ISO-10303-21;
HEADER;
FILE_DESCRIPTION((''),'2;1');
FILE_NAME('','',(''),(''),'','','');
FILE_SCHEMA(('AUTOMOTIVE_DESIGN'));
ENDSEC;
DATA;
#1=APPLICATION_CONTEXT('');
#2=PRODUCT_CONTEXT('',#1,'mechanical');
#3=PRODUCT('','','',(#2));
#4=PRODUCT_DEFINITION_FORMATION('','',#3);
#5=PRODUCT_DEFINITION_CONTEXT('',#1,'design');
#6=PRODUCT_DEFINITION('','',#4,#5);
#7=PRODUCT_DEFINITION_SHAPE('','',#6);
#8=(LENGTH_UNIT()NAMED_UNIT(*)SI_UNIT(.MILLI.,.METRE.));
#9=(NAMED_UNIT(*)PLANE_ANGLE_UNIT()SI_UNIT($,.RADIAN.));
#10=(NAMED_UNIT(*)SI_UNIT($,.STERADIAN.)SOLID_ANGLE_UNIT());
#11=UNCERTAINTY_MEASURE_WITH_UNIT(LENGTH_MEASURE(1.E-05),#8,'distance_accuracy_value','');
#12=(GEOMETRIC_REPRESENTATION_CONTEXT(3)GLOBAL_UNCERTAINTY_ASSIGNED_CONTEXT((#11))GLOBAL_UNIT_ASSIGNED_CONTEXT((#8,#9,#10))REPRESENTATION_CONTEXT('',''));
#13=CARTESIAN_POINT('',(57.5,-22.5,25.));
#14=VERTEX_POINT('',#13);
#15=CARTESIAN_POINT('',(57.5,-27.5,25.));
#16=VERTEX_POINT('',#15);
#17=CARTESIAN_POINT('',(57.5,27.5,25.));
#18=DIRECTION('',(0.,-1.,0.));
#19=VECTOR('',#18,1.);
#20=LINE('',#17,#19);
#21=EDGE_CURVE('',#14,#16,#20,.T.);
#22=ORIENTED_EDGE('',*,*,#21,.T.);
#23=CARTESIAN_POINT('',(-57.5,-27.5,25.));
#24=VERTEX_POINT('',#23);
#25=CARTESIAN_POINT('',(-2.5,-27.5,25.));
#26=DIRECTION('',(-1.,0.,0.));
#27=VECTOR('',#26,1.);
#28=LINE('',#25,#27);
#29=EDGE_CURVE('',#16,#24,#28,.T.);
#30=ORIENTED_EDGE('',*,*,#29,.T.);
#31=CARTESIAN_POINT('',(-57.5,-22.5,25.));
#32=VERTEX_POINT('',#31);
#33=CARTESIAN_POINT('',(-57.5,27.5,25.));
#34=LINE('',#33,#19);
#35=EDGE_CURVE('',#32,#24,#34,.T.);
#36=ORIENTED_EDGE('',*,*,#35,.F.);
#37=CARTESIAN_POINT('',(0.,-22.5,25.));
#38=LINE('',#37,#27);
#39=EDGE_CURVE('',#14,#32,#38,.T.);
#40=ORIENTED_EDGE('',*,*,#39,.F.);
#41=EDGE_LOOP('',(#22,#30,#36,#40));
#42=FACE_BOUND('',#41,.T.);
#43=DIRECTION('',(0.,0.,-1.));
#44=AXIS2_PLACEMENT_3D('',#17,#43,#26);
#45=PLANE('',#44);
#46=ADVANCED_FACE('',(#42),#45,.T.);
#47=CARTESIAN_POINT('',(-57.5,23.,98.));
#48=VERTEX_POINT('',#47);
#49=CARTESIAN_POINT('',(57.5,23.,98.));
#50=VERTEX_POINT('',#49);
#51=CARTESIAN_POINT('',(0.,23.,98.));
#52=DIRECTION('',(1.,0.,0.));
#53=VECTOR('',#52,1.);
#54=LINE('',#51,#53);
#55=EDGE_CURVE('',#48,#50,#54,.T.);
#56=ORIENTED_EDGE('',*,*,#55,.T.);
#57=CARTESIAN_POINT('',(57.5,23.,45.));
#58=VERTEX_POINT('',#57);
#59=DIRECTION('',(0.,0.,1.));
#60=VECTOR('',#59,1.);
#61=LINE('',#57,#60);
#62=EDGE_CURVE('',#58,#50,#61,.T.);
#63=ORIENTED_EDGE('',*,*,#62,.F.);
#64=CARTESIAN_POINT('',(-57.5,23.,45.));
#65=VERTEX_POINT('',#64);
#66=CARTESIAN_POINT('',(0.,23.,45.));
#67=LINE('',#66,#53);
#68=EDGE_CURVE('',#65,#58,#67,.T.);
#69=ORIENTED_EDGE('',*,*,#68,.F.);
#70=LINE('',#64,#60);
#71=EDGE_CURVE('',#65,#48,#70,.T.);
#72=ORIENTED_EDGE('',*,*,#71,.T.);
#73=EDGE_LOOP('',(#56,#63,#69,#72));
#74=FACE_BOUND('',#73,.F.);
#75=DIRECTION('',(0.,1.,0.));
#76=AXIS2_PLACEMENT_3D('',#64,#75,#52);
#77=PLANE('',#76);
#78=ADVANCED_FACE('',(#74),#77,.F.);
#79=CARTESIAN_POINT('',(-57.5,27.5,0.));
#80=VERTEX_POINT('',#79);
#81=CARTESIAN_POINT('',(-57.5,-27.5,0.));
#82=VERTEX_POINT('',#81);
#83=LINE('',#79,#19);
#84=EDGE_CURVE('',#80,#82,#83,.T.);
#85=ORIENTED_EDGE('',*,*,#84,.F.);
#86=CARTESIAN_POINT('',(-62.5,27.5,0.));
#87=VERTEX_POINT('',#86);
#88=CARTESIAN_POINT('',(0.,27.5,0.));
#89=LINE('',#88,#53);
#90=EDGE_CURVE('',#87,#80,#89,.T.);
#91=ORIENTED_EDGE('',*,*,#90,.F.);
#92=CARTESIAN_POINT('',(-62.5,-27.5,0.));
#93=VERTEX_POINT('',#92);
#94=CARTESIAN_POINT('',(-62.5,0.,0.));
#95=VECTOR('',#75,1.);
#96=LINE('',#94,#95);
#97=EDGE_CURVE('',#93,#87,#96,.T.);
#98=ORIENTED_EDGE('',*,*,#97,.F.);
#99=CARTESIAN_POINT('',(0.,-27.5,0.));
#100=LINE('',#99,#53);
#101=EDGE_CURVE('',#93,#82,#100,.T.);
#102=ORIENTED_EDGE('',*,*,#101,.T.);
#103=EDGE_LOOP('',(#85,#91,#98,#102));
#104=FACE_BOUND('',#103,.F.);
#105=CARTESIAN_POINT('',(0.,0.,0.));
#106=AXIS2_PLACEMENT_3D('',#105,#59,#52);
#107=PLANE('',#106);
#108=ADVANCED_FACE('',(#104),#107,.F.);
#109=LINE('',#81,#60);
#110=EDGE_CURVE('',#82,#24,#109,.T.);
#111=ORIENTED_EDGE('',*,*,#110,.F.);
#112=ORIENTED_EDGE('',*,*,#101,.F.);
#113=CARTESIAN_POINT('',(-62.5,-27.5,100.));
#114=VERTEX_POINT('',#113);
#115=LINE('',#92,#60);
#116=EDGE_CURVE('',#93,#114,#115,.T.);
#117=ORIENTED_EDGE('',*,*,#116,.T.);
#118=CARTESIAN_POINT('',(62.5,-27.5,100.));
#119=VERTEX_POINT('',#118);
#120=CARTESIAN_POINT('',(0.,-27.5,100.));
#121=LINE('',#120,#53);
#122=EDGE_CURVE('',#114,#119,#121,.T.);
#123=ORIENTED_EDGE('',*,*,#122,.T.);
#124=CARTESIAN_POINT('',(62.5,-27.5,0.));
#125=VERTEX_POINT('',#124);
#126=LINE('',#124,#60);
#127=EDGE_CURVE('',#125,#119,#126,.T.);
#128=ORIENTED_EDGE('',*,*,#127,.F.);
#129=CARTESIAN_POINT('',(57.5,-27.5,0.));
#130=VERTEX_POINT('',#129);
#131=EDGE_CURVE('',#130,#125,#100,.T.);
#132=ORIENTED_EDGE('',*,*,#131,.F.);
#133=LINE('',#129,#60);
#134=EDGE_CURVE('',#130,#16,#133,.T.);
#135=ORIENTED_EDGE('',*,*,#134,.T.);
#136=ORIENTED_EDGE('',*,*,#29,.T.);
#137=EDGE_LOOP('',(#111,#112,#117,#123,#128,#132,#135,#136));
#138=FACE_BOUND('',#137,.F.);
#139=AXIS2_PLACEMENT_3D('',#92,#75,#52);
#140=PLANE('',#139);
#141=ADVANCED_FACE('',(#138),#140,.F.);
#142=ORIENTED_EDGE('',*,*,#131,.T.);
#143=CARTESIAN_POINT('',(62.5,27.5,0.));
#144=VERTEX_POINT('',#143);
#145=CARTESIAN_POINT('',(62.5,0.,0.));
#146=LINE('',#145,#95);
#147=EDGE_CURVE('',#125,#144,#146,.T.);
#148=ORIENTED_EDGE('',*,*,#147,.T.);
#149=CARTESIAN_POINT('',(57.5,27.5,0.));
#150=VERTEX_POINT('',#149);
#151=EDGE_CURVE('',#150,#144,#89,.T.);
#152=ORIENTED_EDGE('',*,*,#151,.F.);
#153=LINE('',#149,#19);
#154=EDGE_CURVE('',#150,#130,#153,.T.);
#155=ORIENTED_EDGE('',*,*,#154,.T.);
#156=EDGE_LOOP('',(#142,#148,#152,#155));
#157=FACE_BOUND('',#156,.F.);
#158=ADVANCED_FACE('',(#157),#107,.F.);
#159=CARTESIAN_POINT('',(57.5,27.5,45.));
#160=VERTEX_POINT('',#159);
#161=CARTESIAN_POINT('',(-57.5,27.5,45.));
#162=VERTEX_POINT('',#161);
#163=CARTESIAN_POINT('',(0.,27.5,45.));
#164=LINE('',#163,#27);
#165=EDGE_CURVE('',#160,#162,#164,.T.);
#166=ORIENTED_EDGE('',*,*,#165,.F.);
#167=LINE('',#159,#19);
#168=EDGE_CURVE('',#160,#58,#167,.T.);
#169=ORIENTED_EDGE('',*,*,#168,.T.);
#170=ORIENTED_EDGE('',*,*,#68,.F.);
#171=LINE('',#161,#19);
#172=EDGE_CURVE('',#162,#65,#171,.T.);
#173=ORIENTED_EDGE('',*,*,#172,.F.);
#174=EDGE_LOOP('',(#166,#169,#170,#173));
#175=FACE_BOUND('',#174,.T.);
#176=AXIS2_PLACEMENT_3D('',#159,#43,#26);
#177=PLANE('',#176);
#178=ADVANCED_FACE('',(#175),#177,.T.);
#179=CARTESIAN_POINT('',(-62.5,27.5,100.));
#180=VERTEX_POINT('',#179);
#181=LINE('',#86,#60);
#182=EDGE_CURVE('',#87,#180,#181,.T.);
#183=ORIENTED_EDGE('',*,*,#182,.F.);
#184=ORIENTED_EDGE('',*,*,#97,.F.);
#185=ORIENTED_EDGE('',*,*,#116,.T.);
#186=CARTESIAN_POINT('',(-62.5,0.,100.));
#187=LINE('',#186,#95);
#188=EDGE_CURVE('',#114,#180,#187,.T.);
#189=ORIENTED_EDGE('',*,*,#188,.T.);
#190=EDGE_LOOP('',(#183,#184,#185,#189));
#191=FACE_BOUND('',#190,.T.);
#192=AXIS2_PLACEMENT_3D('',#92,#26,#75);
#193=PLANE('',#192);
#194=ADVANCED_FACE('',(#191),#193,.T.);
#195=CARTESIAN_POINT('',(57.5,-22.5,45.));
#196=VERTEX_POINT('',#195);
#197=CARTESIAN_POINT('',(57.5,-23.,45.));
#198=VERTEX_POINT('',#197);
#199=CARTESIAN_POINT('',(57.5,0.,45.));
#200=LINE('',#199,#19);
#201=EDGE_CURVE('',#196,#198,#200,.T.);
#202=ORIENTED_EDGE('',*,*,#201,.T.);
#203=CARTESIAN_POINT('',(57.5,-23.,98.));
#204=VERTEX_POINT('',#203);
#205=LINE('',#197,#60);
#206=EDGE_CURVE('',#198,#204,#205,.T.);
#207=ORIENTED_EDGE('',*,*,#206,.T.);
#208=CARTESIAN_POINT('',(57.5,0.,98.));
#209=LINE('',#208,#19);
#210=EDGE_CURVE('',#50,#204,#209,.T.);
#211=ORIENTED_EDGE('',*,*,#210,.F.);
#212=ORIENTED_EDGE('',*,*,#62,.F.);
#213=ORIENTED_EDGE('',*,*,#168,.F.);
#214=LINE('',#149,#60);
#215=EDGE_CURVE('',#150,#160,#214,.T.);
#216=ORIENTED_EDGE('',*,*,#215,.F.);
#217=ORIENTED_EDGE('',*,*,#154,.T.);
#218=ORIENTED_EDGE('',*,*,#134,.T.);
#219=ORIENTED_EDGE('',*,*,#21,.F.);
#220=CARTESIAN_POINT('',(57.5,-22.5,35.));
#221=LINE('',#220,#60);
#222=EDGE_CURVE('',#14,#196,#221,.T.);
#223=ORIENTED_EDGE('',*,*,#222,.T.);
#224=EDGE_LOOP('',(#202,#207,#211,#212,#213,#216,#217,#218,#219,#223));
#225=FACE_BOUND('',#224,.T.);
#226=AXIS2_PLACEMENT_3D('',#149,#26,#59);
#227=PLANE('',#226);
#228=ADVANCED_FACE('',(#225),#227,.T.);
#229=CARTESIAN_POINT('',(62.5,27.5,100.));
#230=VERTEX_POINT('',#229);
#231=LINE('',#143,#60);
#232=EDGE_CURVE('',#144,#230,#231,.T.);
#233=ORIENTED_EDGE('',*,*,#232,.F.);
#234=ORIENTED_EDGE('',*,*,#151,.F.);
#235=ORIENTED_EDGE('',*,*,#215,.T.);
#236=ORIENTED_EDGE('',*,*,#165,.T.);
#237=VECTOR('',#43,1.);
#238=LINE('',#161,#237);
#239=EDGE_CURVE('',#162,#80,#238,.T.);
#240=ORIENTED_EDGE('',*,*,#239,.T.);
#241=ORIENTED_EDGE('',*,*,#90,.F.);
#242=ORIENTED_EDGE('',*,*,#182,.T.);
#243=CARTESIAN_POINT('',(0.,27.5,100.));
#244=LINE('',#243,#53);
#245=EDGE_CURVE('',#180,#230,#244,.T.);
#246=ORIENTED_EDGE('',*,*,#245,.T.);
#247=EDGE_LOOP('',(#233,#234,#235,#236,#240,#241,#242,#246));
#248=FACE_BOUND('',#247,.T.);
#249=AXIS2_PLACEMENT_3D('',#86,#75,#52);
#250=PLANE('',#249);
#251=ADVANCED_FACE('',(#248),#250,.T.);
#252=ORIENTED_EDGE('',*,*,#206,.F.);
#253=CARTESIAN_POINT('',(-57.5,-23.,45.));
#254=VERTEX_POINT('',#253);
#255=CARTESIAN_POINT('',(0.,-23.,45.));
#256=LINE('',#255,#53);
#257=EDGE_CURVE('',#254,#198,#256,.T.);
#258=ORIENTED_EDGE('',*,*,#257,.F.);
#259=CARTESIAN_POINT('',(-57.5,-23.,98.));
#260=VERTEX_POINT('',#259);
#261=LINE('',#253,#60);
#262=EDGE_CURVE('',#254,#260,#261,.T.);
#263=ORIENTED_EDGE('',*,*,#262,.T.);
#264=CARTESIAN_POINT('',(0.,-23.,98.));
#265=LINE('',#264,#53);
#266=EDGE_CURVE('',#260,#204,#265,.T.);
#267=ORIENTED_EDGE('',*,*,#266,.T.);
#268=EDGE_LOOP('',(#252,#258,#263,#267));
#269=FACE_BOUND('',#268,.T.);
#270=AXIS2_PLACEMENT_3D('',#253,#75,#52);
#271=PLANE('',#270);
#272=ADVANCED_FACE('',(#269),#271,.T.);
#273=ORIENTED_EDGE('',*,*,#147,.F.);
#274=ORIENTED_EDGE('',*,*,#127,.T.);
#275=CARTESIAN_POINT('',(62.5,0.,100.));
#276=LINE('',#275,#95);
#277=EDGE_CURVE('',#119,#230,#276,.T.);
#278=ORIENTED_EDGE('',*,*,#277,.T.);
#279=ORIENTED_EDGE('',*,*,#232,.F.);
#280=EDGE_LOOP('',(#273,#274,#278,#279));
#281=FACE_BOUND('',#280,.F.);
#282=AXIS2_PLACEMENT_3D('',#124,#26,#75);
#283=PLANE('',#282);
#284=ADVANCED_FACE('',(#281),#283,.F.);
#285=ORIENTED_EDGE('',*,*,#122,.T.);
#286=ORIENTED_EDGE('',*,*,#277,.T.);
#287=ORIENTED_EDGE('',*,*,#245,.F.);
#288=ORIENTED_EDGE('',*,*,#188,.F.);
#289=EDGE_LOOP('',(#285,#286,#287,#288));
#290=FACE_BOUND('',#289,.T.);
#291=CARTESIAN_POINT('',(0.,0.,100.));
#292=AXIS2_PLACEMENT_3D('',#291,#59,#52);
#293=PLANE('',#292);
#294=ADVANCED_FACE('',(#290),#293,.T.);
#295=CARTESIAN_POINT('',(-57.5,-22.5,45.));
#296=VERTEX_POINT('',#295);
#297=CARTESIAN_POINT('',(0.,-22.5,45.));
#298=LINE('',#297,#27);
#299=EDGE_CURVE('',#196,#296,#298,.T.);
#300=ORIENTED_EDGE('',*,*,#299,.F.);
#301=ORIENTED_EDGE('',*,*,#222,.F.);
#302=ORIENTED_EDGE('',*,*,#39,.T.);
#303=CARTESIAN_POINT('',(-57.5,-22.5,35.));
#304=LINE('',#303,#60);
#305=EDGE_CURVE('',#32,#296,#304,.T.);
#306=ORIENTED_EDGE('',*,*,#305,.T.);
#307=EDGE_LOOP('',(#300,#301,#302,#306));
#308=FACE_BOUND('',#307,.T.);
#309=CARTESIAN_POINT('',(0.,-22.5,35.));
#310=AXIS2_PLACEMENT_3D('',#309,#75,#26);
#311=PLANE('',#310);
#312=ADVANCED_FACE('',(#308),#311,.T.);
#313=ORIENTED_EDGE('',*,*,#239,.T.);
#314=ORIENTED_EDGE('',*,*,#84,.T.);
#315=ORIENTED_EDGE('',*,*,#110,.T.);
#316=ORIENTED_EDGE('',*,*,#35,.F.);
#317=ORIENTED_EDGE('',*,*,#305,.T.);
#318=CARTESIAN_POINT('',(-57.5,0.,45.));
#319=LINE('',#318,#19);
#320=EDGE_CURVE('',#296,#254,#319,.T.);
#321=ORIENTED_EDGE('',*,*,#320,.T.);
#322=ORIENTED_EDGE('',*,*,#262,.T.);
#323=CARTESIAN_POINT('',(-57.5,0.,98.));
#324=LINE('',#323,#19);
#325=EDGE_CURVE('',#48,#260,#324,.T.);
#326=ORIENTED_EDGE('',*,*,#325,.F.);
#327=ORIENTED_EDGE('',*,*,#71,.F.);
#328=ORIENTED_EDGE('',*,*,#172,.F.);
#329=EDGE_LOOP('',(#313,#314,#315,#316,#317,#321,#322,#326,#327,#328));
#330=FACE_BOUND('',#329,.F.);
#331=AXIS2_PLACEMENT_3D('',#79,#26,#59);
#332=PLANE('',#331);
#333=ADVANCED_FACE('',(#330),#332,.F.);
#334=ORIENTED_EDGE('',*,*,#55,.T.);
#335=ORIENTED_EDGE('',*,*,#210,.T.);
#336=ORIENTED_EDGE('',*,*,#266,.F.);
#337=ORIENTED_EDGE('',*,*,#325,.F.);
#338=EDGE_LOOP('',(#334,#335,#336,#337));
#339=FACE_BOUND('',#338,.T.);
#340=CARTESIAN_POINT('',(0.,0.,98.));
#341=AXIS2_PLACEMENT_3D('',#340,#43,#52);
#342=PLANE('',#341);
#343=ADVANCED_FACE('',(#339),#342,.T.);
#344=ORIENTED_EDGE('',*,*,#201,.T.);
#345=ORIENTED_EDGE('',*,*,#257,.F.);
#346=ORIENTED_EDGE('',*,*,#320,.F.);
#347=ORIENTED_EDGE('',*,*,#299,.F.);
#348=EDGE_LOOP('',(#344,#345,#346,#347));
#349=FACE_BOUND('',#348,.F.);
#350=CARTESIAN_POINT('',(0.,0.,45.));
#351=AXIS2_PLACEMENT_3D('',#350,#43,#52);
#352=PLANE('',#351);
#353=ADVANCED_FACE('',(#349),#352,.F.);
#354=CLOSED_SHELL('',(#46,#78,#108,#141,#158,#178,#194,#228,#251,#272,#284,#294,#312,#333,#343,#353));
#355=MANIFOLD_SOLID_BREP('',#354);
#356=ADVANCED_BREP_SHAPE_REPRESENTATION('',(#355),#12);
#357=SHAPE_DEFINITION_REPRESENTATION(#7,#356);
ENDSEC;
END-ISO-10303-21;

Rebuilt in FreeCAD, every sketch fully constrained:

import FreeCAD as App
import Part
import Sketcher

V = App.Vector

doc = App.newDocument("Part")
body = doc.addObject("PartDesign::Body", "Body")

# Sketch on XY plane
sketch1 = body.newObject("Sketcher::SketchObject", "Sketch")
sketch1.AttachmentSupport = (doc.getObject("XY_Plane"), [""])
sketch1.MapMode = "FlatFace"
sketch1.addGeometry(Part.LineSegment(V(-62, 28, 0), V(-62, -28, 0)), False)
sketch1.addGeometry(Part.LineSegment(V(-62, -28, 0), V(62, -28, 0)), False)
sketch1.addGeometry(Part.LineSegment(V(62, -28, 0), V(62, 28, 0)), False)
sketch1.addGeometry(Part.LineSegment(V(62, 28, 0), V(-62, 28, 0)), False)
sketch1.addConstraint(Sketcher.Constraint("Coincident", 0, 2, 1, 1))
sketch1.addConstraint(Sketcher.Constraint("Coincident", 1, 2, 2, 1))
sketch1.addConstraint(Sketcher.Constraint("Coincident", 2, 2, 3, 1))
sketch1.addConstraint(Sketcher.Constraint("Coincident", 3, 2, 0, 1))
sketch1.addConstraint(Sketcher.Constraint("Vertical", 0))
sketch1.addConstraint(Sketcher.Constraint("Horizontal", 1))
sketch1.addConstraint(Sketcher.Constraint("Vertical", 2))
sketch1.addConstraint(Sketcher.Constraint("Horizontal", 3))
sketch1.addConstraint(Sketcher.Constraint("Symmetric", 0, 2, 2, 2, -1, 1))
sketch1.addConstraint(Sketcher.Constraint("DistanceX", 1, 1, 1, 2, 125.0))
sketch1.addConstraint(Sketcher.Constraint("DistanceY", 0, 2, 0, 1, 55.0))
pad1 = body.newObject("PartDesign::Pad", "Pad")
pad1.Profile = sketch1
pad1.Length = 100

# Sketch on XZ plane
sketch2 = body.newObject("Sketcher::SketchObject", "Sketch001")
sketch2.AttachmentSupport = (doc.getObject("XZ_Plane"), [""])
sketch2.MapMode = "FlatFace"
sketch2.AttachmentOffset = App.Placement(V(0, 0, -27.5), App.Rotation())
sketch2.addGeometry(Part.LineSegment(V(58, 25, 0), V(58, 0, 0)), False)
sketch2.addGeometry(Part.LineSegment(V(58, 0, 0), V(-58, 0, 0)), False)
sketch2.addGeometry(Part.LineSegment(V(-58, 0, 0), V(-58, 25, 0)), False)
sketch2.addGeometry(Part.LineSegment(V(-58, 25, 0), V(58, 25, 0)), False)
sketch2.addConstraint(Sketcher.Constraint("Coincident", 0, 2, 1, 1))
sketch2.addConstraint(Sketcher.Constraint("Coincident", 1, 2, 2, 1))
sketch2.addConstraint(Sketcher.Constraint("Coincident", 2, 2, 3, 1))
sketch2.addConstraint(Sketcher.Constraint("Coincident", 3, 2, 0, 1))
sketch2.addConstraint(Sketcher.Constraint("Vertical", 0))
sketch2.addConstraint(Sketcher.Constraint("Horizontal", 1))
sketch2.addConstraint(Sketcher.Constraint("Vertical", 2))
sketch2.addConstraint(Sketcher.Constraint("Horizontal", 3))
sketch2.addConstraint(Sketcher.Constraint("Symmetric", 0, 2, 1, 2, -1, 1))
sketch2.addConstraint(Sketcher.Constraint("DistanceX", 1, 2, 1, 1, 115.0))
sketch2.addConstraint(Sketcher.Constraint("DistanceY", 0, 2, 0, 1, 25.0))
pocket1 = body.newObject("PartDesign::Pocket", "Pocket")
pocket1.Profile = sketch2
pocket1.Length = 60
pocket1.Reversed = True

# Sketch on XZ plane
sketch3 = body.newObject("Sketcher::SketchObject", "Sketch002")
sketch3.AttachmentSupport = (doc.getObject("XZ_Plane"), [""])
sketch3.MapMode = "FlatFace"
sketch3.AttachmentOffset = App.Placement(V(0, 0, -27.5), App.Rotation())
sketch3.addGeometry(Part.LineSegment(V(58, 45, 0), V(58, 25, 0)), False)
sketch3.addGeometry(Part.LineSegment(V(58, 25, 0), V(-58, 25, 0)), False)
sketch3.addGeometry(Part.LineSegment(V(-58, 25, 0), V(-58, 45, 0)), False)
sketch3.addGeometry(Part.LineSegment(V(-58, 45, 0), V(58, 45, 0)), False)
sketch3.addConstraint(Sketcher.Constraint("Coincident", 0, 2, 1, 1))
sketch3.addConstraint(Sketcher.Constraint("Coincident", 1, 2, 2, 1))
sketch3.addConstraint(Sketcher.Constraint("Coincident", 2, 2, 3, 1))
sketch3.addConstraint(Sketcher.Constraint("Coincident", 3, 2, 0, 1))
sketch3.addConstraint(Sketcher.Constraint("Vertical", 0))
sketch3.addConstraint(Sketcher.Constraint("Horizontal", 1))
sketch3.addConstraint(Sketcher.Constraint("Vertical", 2))
sketch3.addConstraint(Sketcher.Constraint("Horizontal", 3))
sketch3.addConstraint(Sketcher.Constraint("DistanceX", 1, 2, 1, 1, 115.0))
sketch3.addConstraint(Sketcher.Constraint("DistanceY", 0, 2, 0, 1, 20.0))
sketch3.addConstraint(Sketcher.Constraint("DistanceY", -1, 1, 0, 2, 25.0))
sketch3.addConstraint(Sketcher.Constraint("DistanceX", -1, 1, 0, 2, 57.5))
pocket2 = body.newObject("PartDesign::Pocket", "Pocket001")
pocket2.Profile = sketch3
pocket2.Length = 50
pocket2.Reversed = True

# Sketch on XY plane
sketch4 = body.newObject("Sketcher::SketchObject", "Sketch003")
sketch4.AttachmentSupport = (doc.getObject("XY_Plane"), [""])
sketch4.MapMode = "FlatFace"
sketch4.AttachmentOffset = App.Placement(V(0, 0, 45), App.Rotation())
sketch4.addGeometry(Part.LineSegment(V(-58, -23, 0), V(-58, 23, 0)), False)
sketch4.addGeometry(Part.LineSegment(V(-58, 23, 0), V(58, 23, 0)), False)
sketch4.addGeometry(Part.LineSegment(V(58, 23, 0), V(58, -23, 0)), False)
sketch4.addGeometry(Part.LineSegment(V(58, -23, 0), V(-58, -23, 0)), False)
sketch4.addConstraint(Sketcher.Constraint("Coincident", 0, 2, 1, 1))
sketch4.addConstraint(Sketcher.Constraint("Coincident", 1, 2, 2, 1))
sketch4.addConstraint(Sketcher.Constraint("Coincident", 2, 2, 3, 1))
sketch4.addConstraint(Sketcher.Constraint("Coincident", 3, 2, 0, 1))
sketch4.addConstraint(Sketcher.Constraint("Vertical", 0))
sketch4.addConstraint(Sketcher.Constraint("Horizontal", 1))
sketch4.addConstraint(Sketcher.Constraint("Vertical", 2))
sketch4.addConstraint(Sketcher.Constraint("Horizontal", 3))
sketch4.addConstraint(Sketcher.Constraint("Symmetric", 0, 2, 2, 2, -1, 1))
sketch4.addConstraint(Sketcher.Constraint("DistanceX", 1, 1, 1, 2, 115.0))
sketch4.addConstraint(Sketcher.Constraint("DistanceY", 0, 1, 0, 2, 46.0))
pocket3 = body.newObject("PartDesign::Pocket", "Pocket002")
pocket3.Profile = sketch4
pocket3.Length = 53
pocket3.Reversed = True

doc.recompute()
